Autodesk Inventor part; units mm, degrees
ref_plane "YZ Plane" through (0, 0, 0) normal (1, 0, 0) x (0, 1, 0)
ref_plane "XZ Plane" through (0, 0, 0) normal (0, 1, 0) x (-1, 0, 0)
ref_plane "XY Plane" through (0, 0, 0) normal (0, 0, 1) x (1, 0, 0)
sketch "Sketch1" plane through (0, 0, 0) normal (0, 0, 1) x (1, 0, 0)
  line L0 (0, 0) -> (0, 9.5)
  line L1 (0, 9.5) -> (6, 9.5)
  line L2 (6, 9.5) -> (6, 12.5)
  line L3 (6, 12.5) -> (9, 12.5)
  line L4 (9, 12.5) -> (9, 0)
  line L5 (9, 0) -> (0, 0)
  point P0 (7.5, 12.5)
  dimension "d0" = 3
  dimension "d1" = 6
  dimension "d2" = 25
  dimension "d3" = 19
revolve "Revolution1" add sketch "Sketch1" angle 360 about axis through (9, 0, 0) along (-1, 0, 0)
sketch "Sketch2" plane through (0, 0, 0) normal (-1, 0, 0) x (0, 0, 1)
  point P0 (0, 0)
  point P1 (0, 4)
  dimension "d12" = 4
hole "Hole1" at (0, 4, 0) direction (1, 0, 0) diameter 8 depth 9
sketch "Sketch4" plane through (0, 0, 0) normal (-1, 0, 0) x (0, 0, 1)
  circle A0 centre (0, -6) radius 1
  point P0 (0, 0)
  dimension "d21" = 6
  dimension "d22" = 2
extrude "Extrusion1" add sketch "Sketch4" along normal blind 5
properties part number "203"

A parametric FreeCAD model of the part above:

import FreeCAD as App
import Part
import Sketcher

V = App.Vector
Q = App.Units.Quantity


def add_polygon(sketch, points):
    """Adds a closed chain of lines whose ends are joined by coincident constraints."""
    first, n = sketch.GeometryCount, len(points)
    for a, b in zip(points, points[1:] + points[:1]):
        sketch.addGeometry(Part.LineSegment(App.Vector(*a, 0), App.Vector(*b, 0)), False)
    for i in range(n):
        sketch.addConstraint(Sketcher.Constraint("Coincident", first + i, 2, first + (i + 1) % n, 1))

doc = App.newDocument("Part")
params = doc.addObject("Spreadsheet::Sheet", "Params")
for row, (alias, value) in enumerate([
    ("sketch1_width", "3 mm"),
    ("sketch1_width2", "6 mm"),
    ("sketch1_height", "9.5 mm"),
    ("revolution_angle", "360 deg"),
    ("sketch2_diameter", "8 mm"),
    ("hole_diameter", "8 mm"),
    ("hole_depth", "9 mm"),
    ("sketch3_diameter", "2 mm"),
    ("pad1_length", "5 mm"),
], start=1):
    params.set(f"A{row}", alias)
    params.set(f"B{row}", "=" + value)
    params.setAlias(f"B{row}", alias)

body = doc.addObject("PartDesign::Body", "Body")

sketch1 = body.newObject("Sketcher::SketchObject", "Sketch")
sketch1.AttachmentSupport = (doc.getObject("XY_Plane"), [""])
sketch1.MapMode = "FlatFace"
add_polygon(sketch1, [(0, 9.5), (0, 0), (9, 0), (9, 12.5), (6, 12.5), (6, 9.5)])
sketch1.addConstraint([
    Sketcher.Constraint("Vertical", 0),
    Sketcher.Constraint("Horizontal", 1),
    Sketcher.Constraint("Vertical", 2),
    Sketcher.Constraint("Horizontal", 3),
    Sketcher.Constraint("Vertical", 4),
    Sketcher.Constraint("Horizontal", 5),
    Sketcher.Constraint("Coincident", 0, 2, -1, 1),
    Sketcher.Constraint("Equal", 3, 4),
    Sketcher.Constraint("DistanceX", 3, 2, 3, 1, Q("3 mm")),
    Sketcher.Constraint("DistanceX", 5, 2, 5, 1, Q("6 mm")),
    Sketcher.Constraint("DistanceY", 0, 2, 0, 1, Q("9.5 mm")),
])
sketch1.setExpression("Constraints[14]", "Params.sketch1_width")
sketch1.setExpression("Constraints[15]", "Params.sketch1_width2")
sketch1.setExpression("Constraints[16]", "Params.sketch1_height")
revolution = body.newObject("PartDesign::Revolution", "Revolution")
revolution.Profile = sketch1
revolution.ReferenceAxis = (sketch1, ["H_Axis"])
revolution.setExpression("Angle", "Params.revolution_angle")

sketch2 = body.newObject("Sketcher::SketchObject", "Sketch001")
sketch2.AttachmentSupport = (doc.getObject("YZ_Plane"), [""])
sketch2.MapMode = "FlatFace"
sketch2.addGeometry(Part.Circle(V(4, 0, 0), V(0, 0, 1), 4), False)
sketch2.addConstraint([
    Sketcher.Constraint("PointOnObject", 0, 3, -1),
    Sketcher.Constraint("Diameter", 0, Q("8 mm")),
    Sketcher.Constraint("DistanceX", -1, 1, 0, 3, Q("4 mm")),
])
sketch2.setExpression("Constraints[1]", "Params.sketch2_diameter")
doc.recompute()
hole = body.newObject("PartDesign::Hole", "Hole")
hole.Profile = sketch2
hole.ThreadType = "None"
hole.setExpression("Diameter", "Params.hole_diameter")
hole.DepthType = "Dimension"
hole.setExpression("Depth", "Params.hole_depth")
hole.DrillPoint = "Flat"
hole.Reversed = True

sketch3 = body.newObject("Sketcher::SketchObject", "Sketch002")
sketch3.AttachmentSupport = (doc.getObject("YZ_Plane"), [""])
sketch3.MapMode = "FlatFace"
sketch3.addGeometry(Part.Circle(V(-6, 0, 0), V(0, 0, 1), 1), False)
sketch3.addConstraint([
    Sketcher.Constraint("PointOnObject", 0, 3, -1),
    Sketcher.Constraint("Diameter", 0, Q("2 mm")),
    Sketcher.Constraint("DistanceX", 0, 3, -1, 1, Q("6 mm")),
])
sketch3.setExpression("Constraints[1]", "Params.sketch3_diameter")
pad1 = body.newObject("PartDesign::Pad", "Pad")
pad1.Profile = sketch3
pad1.setExpression("Length", "Params.pad1_length")
pad1.Reversed = True

doc.recompute()
